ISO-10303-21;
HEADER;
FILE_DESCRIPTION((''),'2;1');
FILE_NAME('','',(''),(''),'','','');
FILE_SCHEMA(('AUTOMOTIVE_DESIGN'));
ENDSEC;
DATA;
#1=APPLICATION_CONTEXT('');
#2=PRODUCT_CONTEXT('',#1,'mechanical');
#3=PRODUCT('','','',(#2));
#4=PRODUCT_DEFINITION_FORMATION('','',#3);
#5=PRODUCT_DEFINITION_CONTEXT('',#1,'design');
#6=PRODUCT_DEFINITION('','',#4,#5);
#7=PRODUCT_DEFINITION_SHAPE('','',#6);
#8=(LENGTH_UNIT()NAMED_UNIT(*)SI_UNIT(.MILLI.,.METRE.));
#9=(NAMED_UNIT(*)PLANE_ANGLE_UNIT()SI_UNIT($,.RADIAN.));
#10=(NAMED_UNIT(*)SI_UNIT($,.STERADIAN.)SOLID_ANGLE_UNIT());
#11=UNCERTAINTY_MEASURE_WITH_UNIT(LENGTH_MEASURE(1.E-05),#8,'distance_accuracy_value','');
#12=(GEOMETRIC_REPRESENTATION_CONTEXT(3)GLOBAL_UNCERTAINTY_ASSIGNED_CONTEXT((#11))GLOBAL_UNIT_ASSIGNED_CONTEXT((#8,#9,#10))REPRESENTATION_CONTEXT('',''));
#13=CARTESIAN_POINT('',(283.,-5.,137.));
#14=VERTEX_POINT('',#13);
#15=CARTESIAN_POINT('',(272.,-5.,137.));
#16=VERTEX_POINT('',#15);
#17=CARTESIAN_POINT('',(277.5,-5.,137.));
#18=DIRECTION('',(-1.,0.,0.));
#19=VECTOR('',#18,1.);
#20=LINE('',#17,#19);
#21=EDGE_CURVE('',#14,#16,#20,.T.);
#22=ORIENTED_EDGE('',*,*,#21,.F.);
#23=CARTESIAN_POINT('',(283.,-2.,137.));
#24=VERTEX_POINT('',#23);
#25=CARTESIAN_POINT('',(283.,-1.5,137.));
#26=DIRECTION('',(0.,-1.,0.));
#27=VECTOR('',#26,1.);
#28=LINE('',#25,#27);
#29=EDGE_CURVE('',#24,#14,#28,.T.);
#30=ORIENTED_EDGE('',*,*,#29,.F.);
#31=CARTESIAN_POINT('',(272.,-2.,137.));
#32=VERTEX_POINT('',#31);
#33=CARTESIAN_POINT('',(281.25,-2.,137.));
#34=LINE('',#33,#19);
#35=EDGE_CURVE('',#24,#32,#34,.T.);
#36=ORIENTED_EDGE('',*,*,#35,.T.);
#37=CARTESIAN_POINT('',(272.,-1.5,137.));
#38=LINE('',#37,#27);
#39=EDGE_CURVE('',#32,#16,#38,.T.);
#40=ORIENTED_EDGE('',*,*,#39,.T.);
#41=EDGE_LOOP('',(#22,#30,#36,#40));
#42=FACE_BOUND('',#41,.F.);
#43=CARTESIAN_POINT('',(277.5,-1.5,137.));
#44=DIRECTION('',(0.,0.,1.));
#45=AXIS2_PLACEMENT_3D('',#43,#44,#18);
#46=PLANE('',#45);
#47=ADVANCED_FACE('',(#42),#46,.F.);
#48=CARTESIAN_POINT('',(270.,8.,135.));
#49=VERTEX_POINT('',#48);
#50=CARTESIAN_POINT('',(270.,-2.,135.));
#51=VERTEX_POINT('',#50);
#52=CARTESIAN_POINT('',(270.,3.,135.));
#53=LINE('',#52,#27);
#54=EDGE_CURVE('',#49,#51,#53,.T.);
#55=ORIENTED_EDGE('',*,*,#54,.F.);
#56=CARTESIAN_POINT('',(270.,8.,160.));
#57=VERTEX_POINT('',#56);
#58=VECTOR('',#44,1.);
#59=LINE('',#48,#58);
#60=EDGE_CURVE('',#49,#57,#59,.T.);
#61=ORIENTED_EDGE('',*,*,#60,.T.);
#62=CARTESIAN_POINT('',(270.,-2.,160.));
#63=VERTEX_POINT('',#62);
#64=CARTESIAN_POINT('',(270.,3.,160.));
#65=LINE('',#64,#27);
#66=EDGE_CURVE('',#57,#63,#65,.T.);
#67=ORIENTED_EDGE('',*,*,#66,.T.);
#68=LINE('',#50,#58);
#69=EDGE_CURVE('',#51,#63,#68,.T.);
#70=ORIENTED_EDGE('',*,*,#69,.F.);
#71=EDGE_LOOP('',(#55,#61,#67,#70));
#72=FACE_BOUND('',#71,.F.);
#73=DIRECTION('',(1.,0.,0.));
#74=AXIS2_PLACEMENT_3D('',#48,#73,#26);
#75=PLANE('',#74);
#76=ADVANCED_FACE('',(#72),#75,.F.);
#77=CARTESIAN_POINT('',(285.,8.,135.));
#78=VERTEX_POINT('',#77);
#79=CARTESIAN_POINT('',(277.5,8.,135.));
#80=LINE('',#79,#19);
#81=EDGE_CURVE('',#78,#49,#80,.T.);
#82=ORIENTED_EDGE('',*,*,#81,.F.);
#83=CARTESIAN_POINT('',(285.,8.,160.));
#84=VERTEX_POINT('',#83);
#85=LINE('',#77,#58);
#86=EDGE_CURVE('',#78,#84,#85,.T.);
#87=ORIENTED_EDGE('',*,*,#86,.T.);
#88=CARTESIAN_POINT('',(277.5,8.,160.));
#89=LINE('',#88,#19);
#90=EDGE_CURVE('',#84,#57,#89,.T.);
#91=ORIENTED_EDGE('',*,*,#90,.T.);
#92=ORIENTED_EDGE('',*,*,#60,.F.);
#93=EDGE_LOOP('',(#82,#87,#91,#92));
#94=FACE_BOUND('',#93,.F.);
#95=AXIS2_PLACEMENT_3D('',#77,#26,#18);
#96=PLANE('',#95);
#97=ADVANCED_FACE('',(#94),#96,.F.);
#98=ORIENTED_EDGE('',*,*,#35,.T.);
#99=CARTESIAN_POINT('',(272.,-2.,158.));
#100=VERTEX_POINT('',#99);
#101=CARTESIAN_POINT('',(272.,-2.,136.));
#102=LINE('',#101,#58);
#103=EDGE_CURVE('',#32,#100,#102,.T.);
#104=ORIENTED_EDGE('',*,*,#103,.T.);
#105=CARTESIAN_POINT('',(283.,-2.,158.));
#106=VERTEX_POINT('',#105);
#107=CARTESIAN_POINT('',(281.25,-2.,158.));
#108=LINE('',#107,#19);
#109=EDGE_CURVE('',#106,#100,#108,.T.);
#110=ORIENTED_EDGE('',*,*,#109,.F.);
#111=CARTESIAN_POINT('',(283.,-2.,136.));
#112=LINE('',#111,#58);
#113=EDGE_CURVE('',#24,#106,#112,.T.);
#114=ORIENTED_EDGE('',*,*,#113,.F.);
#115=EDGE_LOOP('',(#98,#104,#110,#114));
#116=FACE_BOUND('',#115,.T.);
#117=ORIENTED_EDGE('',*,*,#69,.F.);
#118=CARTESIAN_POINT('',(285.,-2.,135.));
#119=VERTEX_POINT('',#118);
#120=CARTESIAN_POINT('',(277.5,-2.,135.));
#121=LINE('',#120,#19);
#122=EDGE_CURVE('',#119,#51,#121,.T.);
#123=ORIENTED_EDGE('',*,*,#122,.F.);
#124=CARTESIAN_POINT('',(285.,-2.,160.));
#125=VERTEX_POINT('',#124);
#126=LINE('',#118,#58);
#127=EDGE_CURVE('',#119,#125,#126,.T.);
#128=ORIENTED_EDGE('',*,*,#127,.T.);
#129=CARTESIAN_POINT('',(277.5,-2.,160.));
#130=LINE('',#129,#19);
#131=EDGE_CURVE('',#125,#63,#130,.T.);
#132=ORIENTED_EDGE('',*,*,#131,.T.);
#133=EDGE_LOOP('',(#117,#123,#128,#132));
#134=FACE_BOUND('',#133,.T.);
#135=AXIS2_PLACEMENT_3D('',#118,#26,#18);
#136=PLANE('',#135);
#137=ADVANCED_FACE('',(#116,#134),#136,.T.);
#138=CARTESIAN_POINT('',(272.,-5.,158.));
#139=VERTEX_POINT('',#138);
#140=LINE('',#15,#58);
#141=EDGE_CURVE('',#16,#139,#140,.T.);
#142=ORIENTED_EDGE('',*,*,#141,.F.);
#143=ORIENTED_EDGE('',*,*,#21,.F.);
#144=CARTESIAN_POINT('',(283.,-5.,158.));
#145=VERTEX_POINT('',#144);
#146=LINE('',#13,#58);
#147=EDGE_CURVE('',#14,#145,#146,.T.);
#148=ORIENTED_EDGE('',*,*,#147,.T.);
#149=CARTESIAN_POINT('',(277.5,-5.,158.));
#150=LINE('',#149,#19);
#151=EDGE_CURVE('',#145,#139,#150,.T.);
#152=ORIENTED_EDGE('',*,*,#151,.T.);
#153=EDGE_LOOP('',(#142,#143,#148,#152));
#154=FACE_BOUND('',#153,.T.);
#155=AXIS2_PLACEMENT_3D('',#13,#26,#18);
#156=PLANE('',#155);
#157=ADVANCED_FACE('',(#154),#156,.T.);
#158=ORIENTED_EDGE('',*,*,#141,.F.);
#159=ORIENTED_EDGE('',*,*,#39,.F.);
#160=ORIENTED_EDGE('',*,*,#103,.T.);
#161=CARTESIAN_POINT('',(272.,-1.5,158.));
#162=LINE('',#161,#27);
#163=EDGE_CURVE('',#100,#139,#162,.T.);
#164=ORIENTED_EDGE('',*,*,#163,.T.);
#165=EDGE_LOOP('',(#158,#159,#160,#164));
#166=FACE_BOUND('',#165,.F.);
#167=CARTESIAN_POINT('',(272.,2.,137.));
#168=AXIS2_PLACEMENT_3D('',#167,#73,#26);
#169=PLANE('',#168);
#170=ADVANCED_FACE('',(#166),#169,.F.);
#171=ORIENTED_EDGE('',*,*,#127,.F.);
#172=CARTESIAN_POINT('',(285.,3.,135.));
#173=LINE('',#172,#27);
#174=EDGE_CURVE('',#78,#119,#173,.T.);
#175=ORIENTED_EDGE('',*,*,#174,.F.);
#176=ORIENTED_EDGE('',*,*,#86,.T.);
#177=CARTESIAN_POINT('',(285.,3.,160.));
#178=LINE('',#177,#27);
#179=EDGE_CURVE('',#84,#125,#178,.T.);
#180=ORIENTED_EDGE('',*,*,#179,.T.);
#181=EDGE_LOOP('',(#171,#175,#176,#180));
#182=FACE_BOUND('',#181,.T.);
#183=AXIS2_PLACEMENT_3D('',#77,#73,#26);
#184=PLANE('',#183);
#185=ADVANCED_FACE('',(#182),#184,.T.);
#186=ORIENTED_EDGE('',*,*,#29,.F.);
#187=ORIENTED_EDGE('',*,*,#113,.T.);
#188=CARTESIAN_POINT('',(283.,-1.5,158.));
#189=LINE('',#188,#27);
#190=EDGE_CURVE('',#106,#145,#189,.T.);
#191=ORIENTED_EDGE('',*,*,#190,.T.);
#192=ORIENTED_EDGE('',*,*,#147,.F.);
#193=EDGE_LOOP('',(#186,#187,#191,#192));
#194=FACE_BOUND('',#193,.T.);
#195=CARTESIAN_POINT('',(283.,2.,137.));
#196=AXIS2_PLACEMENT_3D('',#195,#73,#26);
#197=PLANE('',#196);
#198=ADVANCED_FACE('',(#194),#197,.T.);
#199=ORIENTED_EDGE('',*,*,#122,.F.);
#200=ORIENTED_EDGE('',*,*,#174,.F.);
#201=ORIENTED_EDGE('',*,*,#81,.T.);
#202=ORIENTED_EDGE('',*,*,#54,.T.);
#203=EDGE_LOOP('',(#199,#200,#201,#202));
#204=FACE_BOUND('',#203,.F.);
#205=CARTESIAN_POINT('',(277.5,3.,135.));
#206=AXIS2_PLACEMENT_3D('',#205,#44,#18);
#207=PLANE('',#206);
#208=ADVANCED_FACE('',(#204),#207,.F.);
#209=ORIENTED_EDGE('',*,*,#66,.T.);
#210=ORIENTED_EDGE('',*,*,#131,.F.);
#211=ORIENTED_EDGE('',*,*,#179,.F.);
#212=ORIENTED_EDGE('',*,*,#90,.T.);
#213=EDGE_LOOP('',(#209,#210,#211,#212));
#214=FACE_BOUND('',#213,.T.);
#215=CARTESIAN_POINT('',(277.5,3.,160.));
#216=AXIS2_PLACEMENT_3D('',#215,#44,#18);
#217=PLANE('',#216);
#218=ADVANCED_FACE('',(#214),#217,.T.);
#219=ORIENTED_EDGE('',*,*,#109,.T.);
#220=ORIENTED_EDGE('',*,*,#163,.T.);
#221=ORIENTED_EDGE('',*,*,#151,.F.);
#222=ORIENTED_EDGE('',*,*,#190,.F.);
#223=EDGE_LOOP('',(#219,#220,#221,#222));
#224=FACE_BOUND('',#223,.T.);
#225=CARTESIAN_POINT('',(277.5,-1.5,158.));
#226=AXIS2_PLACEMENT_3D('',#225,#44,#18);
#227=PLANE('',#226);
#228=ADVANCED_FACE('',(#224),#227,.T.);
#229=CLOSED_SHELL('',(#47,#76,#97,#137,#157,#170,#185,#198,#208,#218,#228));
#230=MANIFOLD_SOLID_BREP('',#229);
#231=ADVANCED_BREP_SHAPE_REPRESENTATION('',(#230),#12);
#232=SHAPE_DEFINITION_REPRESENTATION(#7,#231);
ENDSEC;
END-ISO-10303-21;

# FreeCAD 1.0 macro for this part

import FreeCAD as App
import Part
import Sketcher

V = App.Vector
Q = App.Units.Quantity


def add_polygon(sketch, points):
    """Adds a closed chain of lines whose ends are joined by coincident constraints."""
    first, n = sketch.GeometryCount, len(points)
    for a, b in zip(points, points[1:] + points[:1]):
        sketch.addGeometry(Part.LineSegment(App.Vector(*a, 0), App.Vector(*b, 0)), False)
    for i in range(n):
        sketch.addConstraint(Sketcher.Constraint("Coincident", first + i, 2, first + (i + 1) % n, 1))

doc = App.newDocument("Part")
params = doc.addObject("Spreadsheet::Sheet", "Params")
for row, (alias, value) in enumerate([
    ("sketch1_width", "11 mm"),
    ("sketch1_height", "7 mm"),
    ("pad1_length", "21 mm"),
    ("sketch2_width", "15 mm"),
    ("sketch2_height", "10 mm"),
    ("pad2_length", "25 mm"),
], start=1):
    params.set(f"A{row}", alias)
    params.set(f"B{row}", "=" + value)
    params.setAlias(f"B{row}", alias)

body = doc.addObject("PartDesign::Body", "Body")

# Sketch on XY plane
sketch1 = doc.addObject("Sketcher::SketchObject", "Sketch")
body.addObject(sketch1)
sketch1.AttachmentSupport = (doc.XY_Plane, [""])
sketch1.MapMode = "FlatFace"
sketch1.AttachmentOffset = App.Placement(V(0, 0, 227), App.Rotation())
add_polygon(sketch1, [(227, 243), (227, 236), (238, 236), (238, 243)])  # lines 0-3
sketch1.addConstraint(Sketcher.Constraint("Vertical", 0))
sketch1.addConstraint(Sketcher.Constraint("Horizontal", 1))
sketch1.addConstraint(Sketcher.Constraint("Vertical", 2))
sketch1.addConstraint(Sketcher.Constraint("Horizontal", 3))
sketch1.addConstraint(Sketcher.Constraint("DistanceX", 1, 1, 1, 2, Q("11 mm")))
sketch1.addConstraint(Sketcher.Constraint("DistanceY", 0, 2, 0, 1, Q("7 mm")))
sketch1.addConstraint(Sketcher.Constraint("DistanceX", -1, 1, 0, 2, Q("227 mm")))
sketch1.addConstraint(Sketcher.Constraint("DistanceY", -1, 1, 0, 2, Q("236 mm")))
sketch1.setExpression("Constraints[8]", "Params.sketch1_width")
sketch1.setExpression("Constraints[9]", "Params.sketch1_height")
pad1 = doc.addObject("PartDesign::Pad", "Pad")
body.addObject(pad1)
pad1.Profile = sketch1
pad1.setExpression("Length", "Params.pad1_length")
body2 = doc.addObject("PartDesign::Body", "Body001")

# Sketch on XY plane
sketch2 = doc.addObject("Sketcher::SketchObject", "Sketch001")
body2.addObject(sketch2)
sketch2.AttachmentSupport = (doc.getObject("XY_Plane001"), [""])
sketch2.MapMode = "FlatFace"
sketch2.AttachmentOffset = App.Placement(V(0, 0, 225), App.Rotation())
add_polygon(sketch2, [(225, 240), (225, 230), (240, 230), (240, 240)])  # lines 0-3
sketch2.addConstraint(Sketcher.Constraint("Vertical", 0))
sketch2.addConstraint(Sketcher.Constraint("Horizontal", 1))
sketch2.addConstraint(Sketcher.Constraint("Vertical", 2))
sketch2.addConstraint(Sketcher.Constraint("Horizontal", 3))
sketch2.addConstraint(Sketcher.Constraint("DistanceX", 1, 1, 1, 2, Q("15 mm")))
sketch2.addConstraint(Sketcher.Constraint("DistanceY", 0, 2, 0, 1, Q("10 mm")))
sketch2.addConstraint(Sketcher.Constraint("DistanceX", -1, 1, 0, 2, Q("225 mm")))
sketch2.addConstraint(Sketcher.Constraint("DistanceY", -1, 1, 0, 2, Q("230 mm")))
sketch2.setExpression("Constraints[8]", "Params.sketch2_width")
sketch2.setExpression("Constraints[9]", "Params.sketch2_height")
pad2 = doc.addObject("PartDesign::Pad", "Pad001")
body2.addObject(pad2)
pad2.Profile = sketch2
pad2.setExpression("Length", "Params.pad2_length")
doc.recompute()

boolean = doc.addObject("PartDesign::Boolean", "Boolean")
body2.addObject(boolean)
boolean.Type = "Fuse"
boolean.addObjects([body])
body3 = doc.addObject("PartDesign::Body", "Body002")
doc.recompute()

body2.Placement = App.Placement(V(510, 238, -90), App.Rotation(V(0, 0, 1), 180))
boolean2 = doc.addObject("PartDesign::Boolean", "Boolean001")
body3.addObject(boolean2)
boolean2.Type = "Fuse"
boolean2.addObjects([body2])

doc.recompute()
